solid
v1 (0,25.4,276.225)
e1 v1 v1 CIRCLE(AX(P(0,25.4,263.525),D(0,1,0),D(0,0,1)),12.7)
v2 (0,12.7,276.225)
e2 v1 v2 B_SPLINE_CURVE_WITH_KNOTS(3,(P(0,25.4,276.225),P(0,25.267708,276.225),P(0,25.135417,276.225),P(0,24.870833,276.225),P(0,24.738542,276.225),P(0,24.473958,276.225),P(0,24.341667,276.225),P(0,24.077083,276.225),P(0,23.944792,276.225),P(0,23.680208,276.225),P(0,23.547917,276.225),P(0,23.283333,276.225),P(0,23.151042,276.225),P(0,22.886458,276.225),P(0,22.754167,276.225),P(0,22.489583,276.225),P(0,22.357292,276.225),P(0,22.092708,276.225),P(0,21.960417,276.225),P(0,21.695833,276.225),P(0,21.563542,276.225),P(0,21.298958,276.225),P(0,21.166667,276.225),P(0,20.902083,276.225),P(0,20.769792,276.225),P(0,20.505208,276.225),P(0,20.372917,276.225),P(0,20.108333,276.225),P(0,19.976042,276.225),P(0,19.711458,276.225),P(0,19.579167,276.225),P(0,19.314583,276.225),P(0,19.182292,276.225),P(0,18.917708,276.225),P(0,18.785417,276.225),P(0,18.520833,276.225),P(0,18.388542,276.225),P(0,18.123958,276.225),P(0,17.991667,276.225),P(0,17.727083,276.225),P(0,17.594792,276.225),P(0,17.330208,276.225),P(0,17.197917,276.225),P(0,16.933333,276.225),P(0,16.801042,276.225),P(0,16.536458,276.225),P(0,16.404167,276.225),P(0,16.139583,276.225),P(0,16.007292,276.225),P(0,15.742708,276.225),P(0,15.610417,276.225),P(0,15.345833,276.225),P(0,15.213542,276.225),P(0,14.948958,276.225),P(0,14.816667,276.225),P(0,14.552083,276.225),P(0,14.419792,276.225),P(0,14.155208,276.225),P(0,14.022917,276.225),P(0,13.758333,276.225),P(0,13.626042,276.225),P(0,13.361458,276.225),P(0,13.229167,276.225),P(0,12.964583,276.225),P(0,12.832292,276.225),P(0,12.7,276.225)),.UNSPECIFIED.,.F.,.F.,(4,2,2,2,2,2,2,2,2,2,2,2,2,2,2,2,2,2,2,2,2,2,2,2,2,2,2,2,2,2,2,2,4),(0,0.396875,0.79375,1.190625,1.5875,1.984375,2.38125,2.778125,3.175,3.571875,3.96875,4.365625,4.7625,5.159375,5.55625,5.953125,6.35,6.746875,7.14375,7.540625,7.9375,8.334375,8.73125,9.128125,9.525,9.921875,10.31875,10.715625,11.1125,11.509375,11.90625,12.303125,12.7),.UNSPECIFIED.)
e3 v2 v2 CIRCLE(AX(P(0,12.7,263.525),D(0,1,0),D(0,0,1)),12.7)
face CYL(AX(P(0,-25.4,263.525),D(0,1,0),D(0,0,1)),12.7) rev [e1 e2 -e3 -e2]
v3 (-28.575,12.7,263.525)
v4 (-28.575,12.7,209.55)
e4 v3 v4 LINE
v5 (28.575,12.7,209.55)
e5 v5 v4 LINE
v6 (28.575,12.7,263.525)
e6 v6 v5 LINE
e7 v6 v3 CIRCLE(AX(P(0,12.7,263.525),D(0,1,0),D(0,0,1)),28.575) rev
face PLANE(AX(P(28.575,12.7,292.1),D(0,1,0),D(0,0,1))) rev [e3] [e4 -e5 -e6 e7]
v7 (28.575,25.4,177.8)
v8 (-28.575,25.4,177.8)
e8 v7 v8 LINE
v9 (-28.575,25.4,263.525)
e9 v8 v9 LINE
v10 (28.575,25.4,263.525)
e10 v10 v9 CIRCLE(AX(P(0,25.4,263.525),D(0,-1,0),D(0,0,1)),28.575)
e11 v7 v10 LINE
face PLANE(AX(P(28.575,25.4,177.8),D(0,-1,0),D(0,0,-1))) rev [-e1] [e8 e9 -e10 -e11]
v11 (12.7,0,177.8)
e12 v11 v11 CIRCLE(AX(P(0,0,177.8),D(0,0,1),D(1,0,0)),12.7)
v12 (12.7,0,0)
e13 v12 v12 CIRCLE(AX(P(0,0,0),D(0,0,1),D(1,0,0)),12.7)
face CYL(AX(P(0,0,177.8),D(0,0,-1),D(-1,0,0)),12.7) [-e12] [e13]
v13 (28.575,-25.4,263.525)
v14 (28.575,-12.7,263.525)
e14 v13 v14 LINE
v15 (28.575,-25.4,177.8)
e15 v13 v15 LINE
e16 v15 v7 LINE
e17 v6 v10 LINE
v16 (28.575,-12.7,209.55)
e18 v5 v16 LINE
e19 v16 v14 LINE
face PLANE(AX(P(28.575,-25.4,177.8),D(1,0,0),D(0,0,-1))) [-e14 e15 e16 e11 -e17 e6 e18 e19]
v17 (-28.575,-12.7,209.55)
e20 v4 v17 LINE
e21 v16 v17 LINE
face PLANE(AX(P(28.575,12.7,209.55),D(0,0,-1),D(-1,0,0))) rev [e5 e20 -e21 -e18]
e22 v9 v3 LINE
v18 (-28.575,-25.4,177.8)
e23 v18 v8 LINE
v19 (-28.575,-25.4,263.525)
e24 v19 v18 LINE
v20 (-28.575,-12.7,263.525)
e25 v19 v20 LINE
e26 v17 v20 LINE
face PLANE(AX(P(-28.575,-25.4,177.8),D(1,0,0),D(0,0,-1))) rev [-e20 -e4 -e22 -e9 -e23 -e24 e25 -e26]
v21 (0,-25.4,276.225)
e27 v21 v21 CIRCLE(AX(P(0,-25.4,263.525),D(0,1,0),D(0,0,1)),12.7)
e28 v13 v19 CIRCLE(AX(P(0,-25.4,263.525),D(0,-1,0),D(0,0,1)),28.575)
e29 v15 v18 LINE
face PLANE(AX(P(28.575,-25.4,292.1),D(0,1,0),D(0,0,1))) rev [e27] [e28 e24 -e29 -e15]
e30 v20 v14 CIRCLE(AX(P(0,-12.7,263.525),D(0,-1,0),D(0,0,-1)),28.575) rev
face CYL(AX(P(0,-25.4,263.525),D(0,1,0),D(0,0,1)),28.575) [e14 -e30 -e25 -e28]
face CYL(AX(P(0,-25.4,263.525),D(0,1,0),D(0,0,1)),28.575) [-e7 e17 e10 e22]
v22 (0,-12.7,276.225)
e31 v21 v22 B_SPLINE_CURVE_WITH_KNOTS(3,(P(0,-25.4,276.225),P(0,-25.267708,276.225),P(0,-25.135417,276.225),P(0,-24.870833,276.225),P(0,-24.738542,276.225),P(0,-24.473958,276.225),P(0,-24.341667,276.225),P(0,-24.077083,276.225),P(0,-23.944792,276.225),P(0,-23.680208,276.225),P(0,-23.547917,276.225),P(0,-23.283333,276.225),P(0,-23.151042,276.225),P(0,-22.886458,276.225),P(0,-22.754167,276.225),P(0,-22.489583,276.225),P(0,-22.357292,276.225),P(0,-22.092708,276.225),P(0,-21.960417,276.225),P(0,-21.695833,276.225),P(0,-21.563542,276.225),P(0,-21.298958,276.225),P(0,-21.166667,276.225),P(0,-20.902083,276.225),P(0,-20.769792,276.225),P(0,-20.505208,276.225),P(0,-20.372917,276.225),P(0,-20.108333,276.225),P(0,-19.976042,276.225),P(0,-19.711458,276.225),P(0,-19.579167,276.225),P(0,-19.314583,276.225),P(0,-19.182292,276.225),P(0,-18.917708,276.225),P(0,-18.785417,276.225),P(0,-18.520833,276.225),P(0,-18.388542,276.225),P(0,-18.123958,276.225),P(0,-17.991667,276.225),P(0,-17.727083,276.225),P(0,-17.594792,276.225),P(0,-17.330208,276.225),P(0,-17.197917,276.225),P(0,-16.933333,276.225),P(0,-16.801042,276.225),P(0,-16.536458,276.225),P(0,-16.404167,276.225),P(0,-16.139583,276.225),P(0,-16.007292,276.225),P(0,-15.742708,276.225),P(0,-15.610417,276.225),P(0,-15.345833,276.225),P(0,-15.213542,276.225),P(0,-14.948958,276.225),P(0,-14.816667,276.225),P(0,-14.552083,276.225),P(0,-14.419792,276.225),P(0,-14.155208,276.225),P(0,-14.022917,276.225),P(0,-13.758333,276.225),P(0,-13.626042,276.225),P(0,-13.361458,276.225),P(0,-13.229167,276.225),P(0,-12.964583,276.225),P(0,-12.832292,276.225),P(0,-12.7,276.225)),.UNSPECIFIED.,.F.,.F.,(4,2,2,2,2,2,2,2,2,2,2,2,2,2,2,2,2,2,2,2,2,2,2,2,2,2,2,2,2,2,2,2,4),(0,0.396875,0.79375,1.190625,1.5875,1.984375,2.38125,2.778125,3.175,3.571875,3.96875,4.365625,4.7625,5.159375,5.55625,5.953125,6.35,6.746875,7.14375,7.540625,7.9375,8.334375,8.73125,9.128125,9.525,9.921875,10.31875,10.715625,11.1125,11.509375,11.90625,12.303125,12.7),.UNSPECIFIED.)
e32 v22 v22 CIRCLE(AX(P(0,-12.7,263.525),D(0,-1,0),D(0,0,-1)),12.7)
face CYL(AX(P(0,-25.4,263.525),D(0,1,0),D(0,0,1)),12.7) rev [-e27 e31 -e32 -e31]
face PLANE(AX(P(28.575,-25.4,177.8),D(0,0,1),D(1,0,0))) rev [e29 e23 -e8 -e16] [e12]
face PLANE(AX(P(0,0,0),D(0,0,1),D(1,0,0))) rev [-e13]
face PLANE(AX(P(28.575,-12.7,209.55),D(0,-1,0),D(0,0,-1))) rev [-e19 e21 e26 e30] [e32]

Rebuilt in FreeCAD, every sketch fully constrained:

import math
import FreeCAD as App
import Part
import Sketcher

V = App.Vector
Q = App.Units.Quantity


def add_polygon(sketch, points):
    """Adds a closed chain of lines whose ends are joined by coincident constraints."""
    first, n = sketch.GeometryCount, len(points)
    for a, b in zip(points, points[1:] + points[:1]):
        sketch.addGeometry(Part.LineSegment(App.Vector(*a, 0), App.Vector(*b, 0)), False)
    for i in range(n):
        sketch.addConstraint(Sketcher.Constraint("Coincident", first + i, 2, first + (i + 1) % n, 1))

doc = App.newDocument("Part")
body = doc.addObject("PartDesign::Body", "Body")

# Sketch on XY plane
sketch1 = body.newObject("Sketcher::SketchObject", "Sketch")
sketch1.AttachmentSupport = (doc.getObject("XY_Plane"), [""])
sketch1.MapMode = "FlatFace"
sketch1.addGeometry(Part.Circle(V(0, 0, 0), V(0, 0, 1), 13), False)
sketch1.addConstraint(Sketcher.Constraint("Coincident", 0, 3, -1, 1))
sketch1.addConstraint(Sketcher.Constraint("Diameter", 0, Q("1 in")))
pad1 = body.newObject("PartDesign::Pad", "Pad")
pad1.Profile = sketch1
pad1.Length = Q("7 in")

# Sketch on YZ plane
sketch2 = body.newObject("Sketcher::SketchObject", "Sketch001")
sketch2.AttachmentSupport = (doc.getObject("YZ_Plane"), [""])
sketch2.MapMode = "FlatFace"
add_polygon(sketch2, [(-25, 178), (25, 178), (25, 292), (13, 292), (13, 210), (-13, 210), (-13, 292), (-25, 292)])  # lines 0-7
sketch2.addConstraint(Sketcher.Constraint("Horizontal", 0))
sketch2.addConstraint(Sketcher.Constraint("Vertical", 1))
sketch2.addConstraint(Sketcher.Constraint("Horizontal", 2))
sketch2.addConstraint(Sketcher.Constraint("Vertical", 3))
sketch2.addConstraint(Sketcher.Constraint("Horizontal", 4))
sketch2.addConstraint(Sketcher.Constraint("Vertical", 5))
sketch2.addConstraint(Sketcher.Constraint("Horizontal", 6))
sketch2.addConstraint(Sketcher.Constraint("Vertical", 7))
sketch2.addConstraint(Sketcher.Constraint("Symmetric", 2, 2, 5, 2, -2))
sketch2.addConstraint(Sketcher.Constraint("Equal", 2, 6))
sketch2.addConstraint(Sketcher.Constraint("DistanceX", 0, 1, 0, 2, Q("2 in")))
sketch2.addConstraint(Sketcher.Constraint("DistanceX", 4, 2, 4, 1, Q("1 in")))
sketch2.addConstraint(Sketcher.Constraint("DistanceY", 1, 1, 1, 2, Q("4.5 in")))
sketch2.addConstraint(Sketcher.Constraint("DistanceY", -1, 1, 0, 2, Q("7 in")))
sketch2.addConstraint(Sketcher.Constraint("DistanceY", 3, 2, 3, 1, Q("3.25 in")))
pad2 = body.newObject("PartDesign::Pad", "Pad001")
pad2.Profile = sketch2
pad2.Length = Q("2.25 in")
pad2.Midplane = True

# Sketch on XZ plane
sketch3 = body.newObject("Sketcher::SketchObject", "Sketch002")
sketch3.AttachmentSupport = (doc.getObject("XZ_Plane"), [""])
sketch3.MapMode = "FlatFace"
sketch3.AttachmentOffset = App.Placement(V(0, 0, -1 * 25.4), App.Rotation())
sketch3.addGeometry(Part.Circle(V(0, 264, 0), V(0, 0, 1), 13), False)
sketch3.addGeometry(Part.LineSegment(V(-29, 264, 0), V(-29, 314, 0)), False)
sketch3.addGeometry(Part.LineSegment(V(-29, 314, 0), V(29, 314, 0)), False)
sketch3.addGeometry(Part.LineSegment(V(29, 314, 0), V(29, 264, 0)), False)
sketch3.addGeometry(Part.ArcOfCircle(Part.Circle(V(0, 264, 0), V(0, 0, 1), 29), math.radians(0), math.radians(180)), False)
sketch3.addConstraint(Sketcher.Constraint("Coincident", 1, 2, 2, 1))
sketch3.addConstraint(Sketcher.Constraint("Coincident", 2, 2, 3, 1))
sketch3.addConstraint(Sketcher.Constraint("Tangent", 3, 2, 4, 1))
sketch3.addConstraint(Sketcher.Constraint("Tangent", 4, 2, 1, 1))
sketch3.addConstraint(Sketcher.Constraint("Vertical", 1))
sketch3.addConstraint(Sketcher.Constraint("Horizontal", 2))
sketch3.addConstraint(Sketcher.Constraint("Vertical", 3))
sketch3.addConstraint(Sketcher.Constraint("Coincident", 4, 3, 0, 3))
sketch3.addConstraint(Sketcher.Constraint("PointOnObject", 0, 3, -2))
sketch3.addConstraint(Sketcher.Constraint("Diameter", 0, Q("1 in")))
sketch3.addConstraint(Sketcher.Constraint("DistanceY", 1, 1, 1, 2, Q("2 in")))
sketch3.addConstraint(Sketcher.Constraint("Radius", 4, Q("1.125 in")))
sketch3.addConstraint(Sketcher.Constraint("DistanceY", -1, 1, 0, 3, Q("10.375 in")))
pocket1 = body.newObject("PartDesign::Pocket", "Pocket")
pocket1.Profile = sketch3
pocket1.Type = "ThroughAll"
pocket1.Reversed = True

doc.recompute()
